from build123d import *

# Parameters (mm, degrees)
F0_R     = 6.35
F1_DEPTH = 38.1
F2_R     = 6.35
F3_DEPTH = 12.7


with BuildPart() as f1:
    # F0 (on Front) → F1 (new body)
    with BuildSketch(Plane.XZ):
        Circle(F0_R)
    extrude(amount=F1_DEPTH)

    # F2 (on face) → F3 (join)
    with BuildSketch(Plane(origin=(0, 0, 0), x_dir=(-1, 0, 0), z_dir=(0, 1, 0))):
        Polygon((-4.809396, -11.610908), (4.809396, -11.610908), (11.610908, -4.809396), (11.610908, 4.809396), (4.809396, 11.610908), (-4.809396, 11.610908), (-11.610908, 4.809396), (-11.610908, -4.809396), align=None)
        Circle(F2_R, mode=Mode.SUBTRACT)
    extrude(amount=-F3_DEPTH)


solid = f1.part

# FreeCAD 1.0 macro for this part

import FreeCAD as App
import Part
import Sketcher
Q = App.Units.Quantity

doc = App.newDocument("Part")
params = doc.addObject("Spreadsheet::Sheet", "Params")
for row, (alias, value) in enumerate([
    ("sketch1_diameter", "0.5 in"),
    ("pad1_length", "1.5 in"),
    ("sketch2_diameter", "0.5 in"),
    ("pad2_length", "0.5 in"),
], start=1):
    params.set(f"A{row}", alias)
    params.set(f"B{row}", "=" + value)
    params.setAlias(f"B{row}", alias)

body = doc.addObject("PartDesign::Body", "Body")

sketch1 = doc.addObject("Sketcher::SketchObject", "Sketch")
body.addObject(sketch1)
sketch1.AttachmentSupport = (doc.XZ_Plane, [""])
sketch1.MapMode = "FlatFace"
sketch1.addGeometry(Part.Circle(App.Vector(0, 0, 0), App.Vector(0, 0, 1), 6.35), False)
sketch1.addConstraint(Sketcher.Constraint("Coincident", 0, 3, -1, 1))
sketch1.addConstraint(Sketcher.Constraint("Diameter", 0, Q("0.5 in")))
sketch1.setExpression("Constraints[1]", "Params.sketch1_diameter")
pad1 = doc.addObject("PartDesign::Pad", "Pad")
body.addObject(pad1)
pad1.Profile = sketch1
pad1.setExpression("Length", "Params.pad1_length")

sketch2 = doc.addObject("Sketcher::SketchObject", "Sketch001")
body.addObject(sketch2)
sketch2.AttachmentSupport = (doc.XZ_Plane, [""])
sketch2.MapMode = "FlatFace"
sketch2.addGeometry(Part.LineSegment(App.Vector(4.809396, -11.610908, 0), App.Vector(-4.809396, -11.610908, 0)), False)
sketch2.addGeometry(Part.LineSegment(App.Vector(-4.809396, -11.610908, 0), App.Vector(-11.610908, -4.809396, 0)), False)
sketch2.addGeometry(Part.LineSegment(App.Vector(-11.610908, -4.809396, 0), App.Vector(-11.610908, 4.809396, 0)), False)
sketch2.addGeometry(Part.LineSegment(App.Vector(-11.610908, 4.809396, 0), App.Vector(-4.809396, 11.610908, 0)), False)
sketch2.addGeometry(Part.LineSegment(App.Vector(-4.809396, 11.610908, 0), App.Vector(4.809396, 11.610908, 0)), False)
sketch2.addGeometry(Part.LineSegment(App.Vector(4.809396, 11.610908, 0), App.Vector(11.610908, 4.809396, 0)), False)
sketch2.addGeometry(Part.LineSegment(App.Vector(11.610908, 4.809396, 0), App.Vector(11.610908, -4.809396, 0)), False)
sketch2.addGeometry(Part.LineSegment(App.Vector(11.610908, -4.809396, 0), App.Vector(4.809396, -11.610908, 0)), False)
sketch2.addGeometry(Part.Circle(App.Vector(0, 0, 0), App.Vector(0, 0, 1), 6.35), False)
sketch2.addConstraint(Sketcher.Constraint("Coincident", 0, 2, 1, 1))
sketch2.addConstraint(Sketcher.Constraint("Coincident", 1, 2, 2, 1))
sketch2.addConstraint(Sketcher.Constraint("Coincident", 2, 2, 3, 1))
sketch2.addConstraint(Sketcher.Constraint("Coincident", 3, 2, 4, 1))
sketch2.addConstraint(Sketcher.Constraint("Coincident", 4, 2, 5, 1))
sketch2.addConstraint(Sketcher.Constraint("Coincident", 5, 2, 6, 1))
sketch2.addConstraint(Sketcher.Constraint("Coincident", 6, 2, 7, 1))
sketch2.addConstraint(Sketcher.Constraint("Coincident", 7, 2, 0, 1))
sketch2.addConstraint(Sketcher.Constraint("Horizontal", 0))
sketch2.addConstraint(Sketcher.Constraint("Vertical", 2))
sketch2.addConstraint(Sketcher.Constraint("Horizontal", 4))
sketch2.addConstraint(Sketcher.Constraint("Vertical", 6))
sketch2.addConstraint(Sketcher.Constraint("Coincident", 8, 3, -1, 1))
sketch2.addConstraint(Sketcher.Constraint("Symmetric", 0, 2, 4, 2, -1, 1))
sketch2.addConstraint(Sketcher.Constraint("Symmetric", 1, 2, 5, 2, -1, 1))
sketch2.addConstraint(Sketcher.Constraint("Perpendicular", 1, 3))
sketch2.addConstraint(Sketcher.Constraint("Perpendicular", 5, 7))
sketch2.addConstraint(Sketcher.Constraint("Horizontal", 2, 2, 5, 2))
sketch2.addConstraint(Sketcher.Constraint("Horizontal", 1, 2, 6, 2))
sketch2.addConstraint(Sketcher.Constraint("Vertical", 0, 2, 3, 2))
sketch2.addConstraint(Sketcher.Constraint("Equal", 4, 2))
sketch2.addConstraint(Sketcher.Constraint("Diameter", 8, Q("0.5 in")))
sketch2.addConstraint(Sketcher.Constraint("DistanceX", 0, 2, 0, 1, Q("9.618792 mm")))
sketch2.addConstraint(Sketcher.Constraint("Distance", 1, Q("9.618791 mm")))
sketch2.setExpression("Constraints[21]", "Params.sketch2_diameter")
pad2 = doc.addObject("PartDesign::Pad", "Pad001")
body.addObject(pad2)
pad2.Profile = sketch2
pad2.setExpression("Length", "Params.pad2_length")

doc.recompute()
